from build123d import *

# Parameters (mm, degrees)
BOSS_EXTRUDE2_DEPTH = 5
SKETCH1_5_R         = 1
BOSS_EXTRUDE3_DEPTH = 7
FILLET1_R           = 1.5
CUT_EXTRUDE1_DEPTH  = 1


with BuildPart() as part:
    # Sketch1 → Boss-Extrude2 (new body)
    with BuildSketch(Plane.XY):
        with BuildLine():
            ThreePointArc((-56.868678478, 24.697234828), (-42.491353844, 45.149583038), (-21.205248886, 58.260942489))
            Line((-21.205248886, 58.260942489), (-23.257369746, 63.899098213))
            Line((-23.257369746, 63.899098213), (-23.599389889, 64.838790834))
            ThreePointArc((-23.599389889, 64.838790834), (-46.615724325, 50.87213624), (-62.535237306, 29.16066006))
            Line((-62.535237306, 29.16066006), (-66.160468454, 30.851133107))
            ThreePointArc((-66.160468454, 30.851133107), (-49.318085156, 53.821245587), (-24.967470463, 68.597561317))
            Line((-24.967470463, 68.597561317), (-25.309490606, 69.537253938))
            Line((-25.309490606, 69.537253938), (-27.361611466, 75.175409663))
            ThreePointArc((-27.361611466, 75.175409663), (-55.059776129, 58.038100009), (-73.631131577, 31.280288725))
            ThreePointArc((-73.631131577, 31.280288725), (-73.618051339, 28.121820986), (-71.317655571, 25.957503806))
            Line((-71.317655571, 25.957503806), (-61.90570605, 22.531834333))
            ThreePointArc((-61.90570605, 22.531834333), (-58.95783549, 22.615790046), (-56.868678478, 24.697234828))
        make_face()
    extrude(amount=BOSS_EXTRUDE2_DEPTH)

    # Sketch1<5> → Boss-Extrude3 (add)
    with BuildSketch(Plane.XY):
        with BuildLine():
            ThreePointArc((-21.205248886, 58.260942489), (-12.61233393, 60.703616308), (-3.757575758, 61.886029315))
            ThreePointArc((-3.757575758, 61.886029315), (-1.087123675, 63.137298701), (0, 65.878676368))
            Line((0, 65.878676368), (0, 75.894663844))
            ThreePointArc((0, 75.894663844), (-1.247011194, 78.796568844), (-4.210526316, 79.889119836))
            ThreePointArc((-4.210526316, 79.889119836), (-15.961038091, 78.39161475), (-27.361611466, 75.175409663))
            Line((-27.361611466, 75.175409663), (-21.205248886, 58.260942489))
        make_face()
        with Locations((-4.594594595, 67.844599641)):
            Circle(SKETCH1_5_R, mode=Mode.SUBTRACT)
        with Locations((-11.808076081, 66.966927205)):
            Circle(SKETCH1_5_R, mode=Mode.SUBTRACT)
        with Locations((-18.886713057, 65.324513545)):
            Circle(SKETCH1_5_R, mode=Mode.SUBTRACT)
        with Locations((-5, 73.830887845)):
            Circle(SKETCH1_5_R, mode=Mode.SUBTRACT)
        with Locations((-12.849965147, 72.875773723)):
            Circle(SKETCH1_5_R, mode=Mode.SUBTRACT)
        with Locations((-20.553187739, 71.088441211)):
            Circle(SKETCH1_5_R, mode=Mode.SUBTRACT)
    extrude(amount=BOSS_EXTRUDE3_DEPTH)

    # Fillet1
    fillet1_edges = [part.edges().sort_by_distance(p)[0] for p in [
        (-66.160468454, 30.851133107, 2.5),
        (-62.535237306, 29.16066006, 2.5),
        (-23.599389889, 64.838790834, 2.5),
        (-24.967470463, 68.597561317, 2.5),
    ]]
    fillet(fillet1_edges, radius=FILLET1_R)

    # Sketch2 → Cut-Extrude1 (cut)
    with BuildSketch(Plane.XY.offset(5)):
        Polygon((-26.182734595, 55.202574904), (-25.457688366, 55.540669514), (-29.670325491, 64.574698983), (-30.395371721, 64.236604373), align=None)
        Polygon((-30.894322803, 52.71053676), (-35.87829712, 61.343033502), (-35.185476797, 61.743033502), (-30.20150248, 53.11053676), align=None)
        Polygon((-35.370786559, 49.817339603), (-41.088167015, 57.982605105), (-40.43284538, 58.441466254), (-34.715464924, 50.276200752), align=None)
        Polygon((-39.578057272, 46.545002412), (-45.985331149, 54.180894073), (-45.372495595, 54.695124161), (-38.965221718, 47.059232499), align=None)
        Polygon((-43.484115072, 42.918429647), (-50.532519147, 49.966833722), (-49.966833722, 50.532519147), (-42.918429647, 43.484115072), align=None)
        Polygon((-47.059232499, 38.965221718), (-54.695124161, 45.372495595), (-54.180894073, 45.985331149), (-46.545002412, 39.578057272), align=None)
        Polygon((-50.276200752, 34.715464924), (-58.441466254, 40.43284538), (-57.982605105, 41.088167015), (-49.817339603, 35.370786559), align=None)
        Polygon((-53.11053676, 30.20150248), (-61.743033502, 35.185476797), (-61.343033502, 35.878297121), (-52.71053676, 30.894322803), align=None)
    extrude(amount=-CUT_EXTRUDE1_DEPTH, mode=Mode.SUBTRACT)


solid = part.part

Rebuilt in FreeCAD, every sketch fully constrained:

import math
import FreeCAD as App
import Part
import Sketcher

V = App.Vector
Q = App.Units.Quantity


def edges_at(feature, points):
    """Names of the edges that pass closest to the given points."""
    edges = feature.Shape.Edges
    near = lambda p: min(range(len(edges)), key=lambda i: edges[i].distToShape(Part.Vertex(*p))[0])
    return sorted({f"Edge{near(p) + 1}" for p in points})

doc = App.newDocument("Part")
body = doc.addObject("PartDesign::Body", "Body")

# Sketch on XY plane
sketch1 = body.newObject("Sketcher::SketchObject", "Sketch")
sketch1.AttachmentSupport = (doc.getObject("XY_Plane"), [""])
sketch1.MapMode = "FlatFace"
sketch1.addGeometry([
    Part.ArcOfCircle(Part.Circle(V(0, 0, 0), V(0, 0, 1), 62), math.radians(110), math.radians(157)),  # 0
    Part.LineSegment(V(-21.2, 58.3, 0), V(-23.3, 63.9, 0)),  # 1
    Part.LineSegment(V(-23.3, 63.9, 0), V(-23.6, 64.8, 0)),  # 2
    Part.ArcOfCircle(Part.Circle(V(0, 0, 0), V(0, 0, 1), 69), math.radians(110), math.radians(155)),  # 3
    Part.LineSegment(V(-62.5, 29.2, 0), V(-66.2, 30.9, 0)),  # 4
    Part.ArcOfCircle(Part.Circle(V(0, 0, 0), V(0, 0, 1), 73), math.radians(110), math.radians(155)),  # 5
    Part.LineSegment(V(-25, 68.6, 0), V(-25.3, 69.5, 0)),  # 6
    Part.LineSegment(V(-25.3, 69.5, 0), V(-27.4, 75.2, 0)),  # 7
    Part.ArcOfCircle(Part.Circle(V(0, 0, 0), V(0, 0, 1), 80), math.radians(110), math.radians(157)),  # 8
    Part.ArcOfCircle(Part.Circle(V(-69.9, 29.7, 0), V(0, 0, 1), 4), math.radians(157), math.radians(250)),  # 9
    Part.LineSegment(V(-71.3, 26, 0), V(-61.9, 22.5, 0)),  # 10
    Part.ArcOfCircle(Part.Circle(V(-60.5, 26.3, 0), V(0, 0, 1), 4), math.radians(-110), math.radians(-23)),  # 11
], False)
sketch1.addConstraint([
    Sketcher.Constraint("Coincident", 0, 1, 1, 1),
    Sketcher.Constraint("Coincident", 1, 2, 2, 1),
    Sketcher.Constraint("Coincident", 2, 2, 3, 1),
    Sketcher.Constraint("Coincident", 3, 2, 4, 1),
    Sketcher.Constraint("Coincident", 4, 2, 5, 2),
    Sketcher.Constraint("Coincident", 5, 1, 6, 1),
    Sketcher.Constraint("Coincident", 6, 2, 7, 1),
    Sketcher.Constraint("Coincident", 7, 2, 8, 1),
    Sketcher.Constraint("Tangent", 8, 2, 9, 1),
    Sketcher.Constraint("Tangent", 9, 2, 10, 1),
    Sketcher.Constraint("Tangent", 10, 2, 11, 1),
    Sketcher.Constraint("Tangent", 11, 2, 0, 2),
    Sketcher.Constraint("Coincident", 0, 3, -1, 1),
    Sketcher.Constraint("Coincident", 3, 3, -1, 1),
    Sketcher.Constraint("Coincident", 5, 3, -1, 1),
    Sketcher.Constraint("Coincident", 8, 3, -1, 1),
    Sketcher.Constraint("Equal", 9, 11),
    Sketcher.Constraint("Parallel", 1, 2),
    Sketcher.Constraint("Parallel", 2, 6),
    Sketcher.Constraint("Parallel", 6, 7),
    Sketcher.Constraint("Equal", 2, 6),
    Sketcher.Constraint("Equal", 1, 7),
    Sketcher.Constraint("Radius", 0, 62.0),
    Sketcher.Constraint("Radius", 3, 69.0),
    Sketcher.Constraint("Radius", 5, 73.0),
    Sketcher.Constraint("Radius", 9, 4.0),
    Sketcher.Constraint("Angle", 1, Q("110 deg")),
    Sketcher.Constraint("Angle", 4, Q("155 deg")),
    Sketcher.Constraint("Angle", 10, Q("-20 deg")),
    Sketcher.Constraint("Distance", 1, 6.0),
    Sketcher.Constraint("DistanceY", -1, 1, 1, 2, 63.899098),
    Sketcher.Constraint("DistanceX", 4, 2, 1, 2, 42.903099),
    Sketcher.Constraint("DistanceX", 5, 1, 1, 2, 1.710101),
    Sketcher.Constraint("DistanceY", 10, 2, 4, 2, 8.319299),
])
pad1 = body.newObject("PartDesign::Pad", "Pad")
pad1.Profile = sketch1
pad1.Length = 5

# Sketch on XY plane
sketch2 = body.newObject("Sketcher::SketchObject", "Sketch001")
sketch2.AttachmentSupport = (doc.getObject("XY_Plane"), [""])
sketch2.MapMode = "FlatFace"
sketch2.addGeometry([
    Part.ArcOfCircle(Part.Circle(V(0, 0, 0), V(0, 0, 1), 62), math.radians(93.47), math.radians(110)),  # 0
    Part.ArcOfCircle(Part.Circle(V(-4, 65.9, 0), V(0, 0, 1), 4), math.radians(-87), math.radians(0)),  # 1
    Part.LineSegment(V(0, 65.9, 0), V(0, 75.9, 0)),  # 2
    Part.ArcOfCircle(Part.Circle(V(-4, 75.9, 0), V(0, 0, 1), 4), math.radians(0), math.radians(93)),  # 3
    Part.ArcOfCircle(Part.Circle(V(0, 0, 0), V(0, 0, 1), 80), math.radians(93.02), math.radians(110)),  # 4
    Part.LineSegment(V(-27.4, 75.2, 0), V(-21.2, 58.3, 0)),  # 5
    Part.Circle(V(-18.9, 65.3, 0), V(0, 0, 1), 1),  # 6
    Part.Circle(V(-11.8, 67, 0), V(0, 0, 1), 1),  # 7
    Part.Circle(V(-4.6, 67.8, 0), V(0, 0, 1), 1),  # 8
    Part.Circle(V(-20.6, 71.1, 0), V(0, 0, 1), 1),  # 9
    Part.Circle(V(-12.8, 72.9, 0), V(0, 0, 1), 1),  # 10
    Part.Circle(V(-5, 73.8, 0), V(0, 0, 1), 1),  # 11
], False)
sketch2.addConstraint([
    Sketcher.Constraint("Tangent", 0, 1, 1, 1),
    Sketcher.Constraint("Tangent", 1, 2, 2, 1),
    Sketcher.Constraint("Tangent", 2, 2, 3, 1),
    Sketcher.Constraint("Tangent", 3, 2, 4, 1),
    Sketcher.Constraint("Coincident", 4, 2, 5, 1),
    Sketcher.Constraint("Coincident", 5, 2, 0, 2),
    Sketcher.Constraint("Vertical", 2),
    Sketcher.Constraint("Coincident", 0, 3, -1, 1),
    Sketcher.Constraint("Coincident", 4, 3, -1, 1),
    Sketcher.Constraint("Equal", 1, 3),
    Sketcher.Constraint("Equal", 6, 7),
    Sketcher.Constraint("Equal", 7, 8),
    Sketcher.Constraint("Equal", 8, 9),
    Sketcher.Constraint("Equal", 9, 10),
    Sketcher.Constraint("Equal", 10, 11),
    Sketcher.Constraint("PointOnObject", 1, 2, -2),
    Sketcher.Constraint("Diameter", 6, 2.0),
    Sketcher.Constraint("Radius", 0, 62.0),
    Sketcher.Constraint("Radius", 1, 4.0),
    Sketcher.Constraint("Radius", 4, 80.0),
    Sketcher.Constraint("Angle", 5, Q("-70 deg")),
    Sketcher.Constraint("DistanceX", 11, 3, -1, 1, 5.0),
    Sketcher.Constraint("DistanceY", -1, 1, 8, 3, 67.8446),
    Sketcher.Constraint("DistanceX", 7, 3, 0, 1, 8.0505),
    Sketcher.Constraint("DistanceX", 4, 2, 6, 3, 8.474898),
    Sketcher.Constraint("DistanceY", 5, 2, 9, 3, 12.827499),
    Sketcher.Constraint("DistanceY", -1, 1, 9, 3, 71.088441),
    Sketcher.Constraint("DistanceY", 6, 3, 3, 3, 10.57015),
    Sketcher.Constraint("DistanceY", 1, 3, 7, 3, 1.088251),
    Sketcher.Constraint("DistanceX", 7, 3, 8, 3, 7.213481),
    Sketcher.Constraint("DistanceX", 9, 3, 7, 3, 8.745112),
    Sketcher.Constraint("DistanceX", 10, 3, 7, 3, 1.041889),
    Sketcher.Constraint("DistanceY", 10, 3, 3, 3, 3.01889),
    Sketcher.Constraint("DistanceY", 8, 3, 11, 3, 5.986288),
])
pad2 = body.newObject("PartDesign::Pad", "Pad001")
pad2.Profile = sketch2
pad2.Length = 7
doc.recompute()

fillet = body.newObject("PartDesign::Fillet", "Fillet")
fillet.Base = (pad2, edges_at(pad2, [
    (-66.16, 30.851, 2.5),
    (-62.535, 29.161, 2.5),
    (-23.599, 64.839, 2.5),
    (-24.967, 68.598, 2.5),
]))
fillet.Radius = 1.5

# Sketch on XY plane
sketch3 = body.newObject("Sketcher::SketchObject", "Sketch002")
sketch3.AttachmentSupport = (doc.getObject("XY_Plane"), [""])
sketch3.MapMode = "FlatFace"
sketch3.AttachmentOffset = App.Placement(V(0, 0, 5), App.Rotation())
sketch3.addGeometry([
    Part.LineSegment(V(-26.2, 55.2, 0), V(-25.5, 55.5, 0)),  # 0
    Part.LineSegment(V(-25.5, 55.5, 0), V(-29.7, 64.6, 0)),  # 1
    Part.LineSegment(V(-29.7, 64.6, 0), V(-30.4, 64.2, 0)),  # 2
    Part.LineSegment(V(-30.4, 64.2, 0), V(-26.2, 55.2, 0)),  # 3
    Part.LineSegment(V(-35.9, 61.3, 0), V(-30.9, 52.7, 0)),  # 4
    Part.LineSegment(V(-30.9, 52.7, 0), V(-30.2, 53.1, 0)),  # 5
    Part.LineSegment(V(-30.2, 53.1, 0), V(-35.2, 61.7, 0)),  # 6
    Part.LineSegment(V(-35.2, 61.7, 0), V(-35.9, 61.3, 0)),  # 7
    Part.LineSegment(V(-41.1, 58, 0), V(-35.4, 49.8, 0)),  # 8
    Part.LineSegment(V(-35.4, 49.8, 0), V(-34.7, 50.3, 0)),  # 9
    Part.LineSegment(V(-34.7, 50.3, 0), V(-40.4, 58.4, 0)),  # 10
    Part.LineSegment(V(-40.4, 58.4, 0), V(-41.1, 58, 0)),  # 11
    Part.LineSegment(V(-46, 54.2, 0), V(-39.6, 46.5, 0)),  # 12
    Part.LineSegment(V(-39.6, 46.5, 0), V(-39, 47.1, 0)),  # 13
    Part.LineSegment(V(-39, 47.1, 0), V(-45.4, 54.7, 0)),  # 14
    Part.LineSegment(V(-45.4, 54.7, 0), V(-46, 54.2, 0)),  # 15
    Part.LineSegment(V(-50.5, 50, 0), V(-43.5, 42.9, 0)),  # 16
    Part.LineSegment(V(-43.5, 42.9, 0), V(-42.9, 43.5, 0)),  # 17
    Part.LineSegment(V(-42.9, 43.5, 0), V(-50, 50.5, 0)),  # 18
    Part.LineSegment(V(-50, 50.5, 0), V(-50.5, 50, 0)),  # 19
    Part.LineSegment(V(-54.7, 45.4, 0), V(-47.1, 39, 0)),  # 20
    Part.LineSegment(V(-47.1, 39, 0), V(-46.5, 39.6, 0)),  # 21
    Part.LineSegment(V(-46.5, 39.6, 0), V(-54.2, 46, 0)),  # 22
    Part.LineSegment(V(-54.2, 46, 0), V(-54.7, 45.4, 0)),  # 23
    Part.LineSegment(V(-58.4, 40.4, 0), V(-50.3, 34.7, 0)),  # 24
    Part.LineSegment(V(-50.3, 34.7, 0), V(-49.8, 35.4, 0)),  # 25
    Part.LineSegment(V(-49.8, 35.4, 0), V(-58, 41.1, 0)),  # 26
    Part.LineSegment(V(-58, 41.1, 0), V(-58.4, 40.4, 0)),  # 27
    Part.LineSegment(V(-61.7, 35.2, 0), V(-53.1, 30.2, 0)),  # 28
    Part.LineSegment(V(-53.1, 30.2, 0), V(-52.7, 30.9, 0)),  # 29
    Part.LineSegment(V(-52.7, 30.9, 0), V(-61.3, 35.9, 0)),  # 30
    Part.LineSegment(V(-61.3, 35.9, 0), V(-61.7, 35.2, 0)),  # 31
], False)
sketch3.addConstraint([
    Sketcher.Constraint("Coincident", 0, 2, 1, 1),
    Sketcher.Constraint("Coincident", 1, 2, 2, 1),
    Sketcher.Constraint("Coincident", 2, 2, 3, 1),
    Sketcher.Constraint("Coincident", 3, 2, 0, 1),
    Sketcher.Constraint("Coincident", 4, 2, 5, 1),
    Sketcher.Constraint("Coincident", 5, 2, 6, 1),
    Sketcher.Constraint("Coincident", 6, 2, 7, 1),
    Sketcher.Constraint("Coincident", 7, 2, 4, 1),
    Sketcher.Constraint("Coincident", 8, 2, 9, 1),
    Sketcher.Constraint("Coincident", 9, 2, 10, 1),
    Sketcher.Constraint("Coincident", 10, 2, 11, 1),
    Sketcher.Constraint("Coincident", 11, 2, 8, 1),
    Sketcher.Constraint("Coincident", 12, 2, 13, 1),
    Sketcher.Constraint("Coincident", 13, 2, 14, 1),
    Sketcher.Constraint("Coincident", 14, 2, 15, 1),
    Sketcher.Constraint("Coincident", 15, 2, 12, 1),
    Sketcher.Constraint("Coincident", 16, 2, 17, 1),
    Sketcher.Constraint("Coincident", 17, 2, 18, 1),
    Sketcher.Constraint("Coincident", 18, 2, 19, 1),
    Sketcher.Constraint("Coincident", 19, 2, 16, 1),
    Sketcher.Constraint("Coincident", 20, 2, 21, 1),
    Sketcher.Constraint("Coincident", 21, 2, 22, 1),
    Sketcher.Constraint("Coincident", 22, 2, 23, 1),
    Sketcher.Constraint("Coincident", 23, 2, 20, 1),
    Sketcher.Constraint("Coincident", 24, 2, 25, 1),
    Sketcher.Constraint("Coincident", 25, 2, 26, 1),
    Sketcher.Constraint("Coincident", 26, 2, 27, 1),
    Sketcher.Constraint("Coincident", 27, 2, 24, 1),
    Sketcher.Constraint("Coincident", 28, 2, 29, 1),
    Sketcher.Constraint("Coincident", 29, 2, 30, 1),
    Sketcher.Constraint("Coincident", 30, 2, 31, 1),
    Sketcher.Constraint("Coincident", 31, 2, 28, 1),
    Sketcher.Constraint("Perpendicular", 0, 1),
    Sketcher.Constraint("Perpendicular", 1, 2),
    Sketcher.Constraint("Perpendicular", 2, 3),
    Sketcher.Constraint("Perpendicular", 4, 5),
    Sketcher.Constraint("Perpendicular", 5, 6),
    Sketcher.Constraint("Perpendicular", 6, 7),
    Sketcher.Constraint("Perpendicular", 8, 9),
    Sketcher.Constraint("Perpendicular", 9, 10),
    Sketcher.Constraint("Perpendicular", 10, 11),
    Sketcher.Constraint("Perpendicular", 12, 13),
    Sketcher.Constraint("Perpendicular", 13, 14),
    Sketcher.Constraint("Perpendicular", 14, 15),
    Sketcher.Constraint("Perpendicular", 16, 17),
    Sketcher.Constraint("Perpendicular", 17, 18),
    Sketcher.Constraint("Perpendicular", 18, 19),
    Sketcher.Constraint("Perpendicular", 20, 21),
    Sketcher.Constraint("Perpendicular", 21, 22),
    Sketcher.Constraint("Perpendicular", 22, 23),
    Sketcher.Constraint("Perpendicular", 24, 25),
    Sketcher.Constraint("Perpendicular", 25, 26),
    Sketcher.Constraint("Perpendicular", 26, 27),
    Sketcher.Constraint("Perpendicular", 28, 29),
    Sketcher.Constraint("Perpendicular", 29, 30),
    Sketcher.Constraint("Perpendicular", 30, 31),
    Sketcher.Constraint("Equal", 3, 4),
    Sketcher.Constraint("Equal", 2, 5),
    Sketcher.Constraint("Equal", 6, 8),
    Sketcher.Constraint("Equal", 7, 9),
    Sketcher.Constraint("Equal", 10, 12),
    Sketcher.Constraint("Equal", 11, 13),
    Sketcher.Constraint("Equal", 14, 16),
    Sketcher.Constraint("Equal", 15, 17),
    Sketcher.Constraint("Equal", 18, 20),
    Sketcher.Constraint("Equal", 19, 21),
    Sketcher.Constraint("Equal", 22, 24),
    Sketcher.Constraint("Equal", 23, 25),
    Sketcher.Constraint("Equal", 26, 28),
    Sketcher.Constraint("Equal", 27, 29),
    Sketcher.Constraint("Angle", 0, Q("25 deg")),
    Sketcher.Constraint("Angle", 4, Q("-60 deg")),
    Sketcher.Constraint("Angle", 8, Q("-55 deg")),
    Sketcher.Constraint("Angle", 12, Q("-50 deg")),
    Sketcher.Constraint("Angle", 16, Q("-45 deg")),
    Sketcher.Constraint("Angle", 20, Q("-40 deg")),
    Sketcher.Constraint("Angle", 24, Q("-35 deg")),
    Sketcher.Constraint("Angle", 28, Q("-30 deg")),
    Sketcher.Constraint("Distance", 0, 0.8),
    Sketcher.Constraint("DistanceY", -1, 1, 1, 2, 64.574699),
    Sketcher.Constraint("DistanceY", -1, 1, 9, 2, 50.276201),
    Sketcher.Constraint("DistanceX", 24, 2, -1, 1, 50.276201),
    Sketcher.Constraint("DistanceX", 8, 2, 0, 2, 9.913098),
    Sketcher.Constraint("DistanceY", 12, 2, 9, 2, 3.731198),
    Sketcher.Constraint("DistanceX", 13, 2, 4, 2, 8.070899),
    Sketcher.Constraint("DistanceY", 16, 2, 22, 2, 3.066902),
    Sketcher.Constraint("DistanceX", 24, 2, 21, 2, 3.731198),
    Sketcher.Constraint("DistanceY", 29, 2, 20, 2, 8.070899),
    Sketcher.Constraint("Distance", 1, 9.967949),
    Sketcher.Constraint("DistanceX", 0, 2, -1, 1, 25.457688),
    Sketcher.Constraint("DistanceX", 13, 2, -1, 1, 38.965222),
    Sketcher.Constraint("DistanceY", -1, 1, 16, 2, 42.91843),
    Sketcher.Constraint("DistanceX", 17, 2, -1, 1, 42.91843),
    Sketcher.Constraint("DistanceY", 4, 2, 3, 2, 2.492038),
    Sketcher.Constraint("DistanceY", 24, 2, 17, 2, 8.76865),
    Sketcher.Constraint("DistanceX", 27, 2, 28, 2, 5.330929),
])
pocket1 = body.newObject("PartDesign::Pocket", "Pocket")
pocket1.Profile = sketch3
pocket1.Length = 1

doc.recompute()
